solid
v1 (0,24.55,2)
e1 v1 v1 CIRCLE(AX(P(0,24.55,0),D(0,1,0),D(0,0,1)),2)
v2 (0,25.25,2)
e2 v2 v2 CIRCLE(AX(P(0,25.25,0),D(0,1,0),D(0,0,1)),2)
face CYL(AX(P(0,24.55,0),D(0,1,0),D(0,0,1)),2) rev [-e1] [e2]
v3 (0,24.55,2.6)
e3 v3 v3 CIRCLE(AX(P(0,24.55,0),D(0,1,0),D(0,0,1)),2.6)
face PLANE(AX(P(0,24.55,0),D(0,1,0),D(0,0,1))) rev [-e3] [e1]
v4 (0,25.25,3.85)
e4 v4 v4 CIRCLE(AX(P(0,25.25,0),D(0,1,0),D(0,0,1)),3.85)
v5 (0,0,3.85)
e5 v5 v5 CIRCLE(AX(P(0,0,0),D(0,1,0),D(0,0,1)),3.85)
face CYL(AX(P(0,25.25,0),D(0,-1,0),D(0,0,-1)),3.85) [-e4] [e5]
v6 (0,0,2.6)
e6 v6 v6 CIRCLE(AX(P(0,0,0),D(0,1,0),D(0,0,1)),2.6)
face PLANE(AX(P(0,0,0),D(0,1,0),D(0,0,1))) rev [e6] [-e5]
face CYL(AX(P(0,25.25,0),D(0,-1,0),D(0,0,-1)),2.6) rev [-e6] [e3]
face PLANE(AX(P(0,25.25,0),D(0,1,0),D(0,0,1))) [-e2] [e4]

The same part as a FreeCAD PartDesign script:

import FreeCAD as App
import Part
import Sketcher
from FreeCAD import Vector

doc = App.newDocument("Part")
body = doc.addObject("PartDesign::Body", "Body")

sketch1 = doc.addObject("Sketcher::SketchObject", "Sketch")
body.addObject(sketch1)
sketch1.AttachmentSupport = (doc.XZ_Plane, [""])
sketch1.MapMode = "FlatFace"
sketch1.addGeometry(Part.Circle(Vector(0, 0, 0), Vector(0, 0, 1), 3.9), False)
sketch1.addGeometry(Part.Circle(Vector(0, 0, 0), Vector(0, 0, 1), 2.6), False)
sketch1.addConstraint(Sketcher.Constraint("Coincident", 0, 3, -1, 1))
sketch1.addConstraint(Sketcher.Constraint("Coincident", 1, 3, -1, 1))
sketch1.addConstraint(Sketcher.Constraint("Diameter", 0, 7.7))
sketch1.addConstraint(Sketcher.Constraint("Diameter", 1, 5.2))
pad1 = doc.addObject("PartDesign::Pad", "Pad")
body.addObject(pad1)
pad1.Profile = sketch1
pad1.Length = 25.25
pad1.Reversed = True

sketch2 = doc.addObject("Sketcher::SketchObject", "Sketch001")
body.addObject(sketch2)
sketch2.AttachmentSupport = (doc.XZ_Plane, [""])
sketch2.MapMode = "FlatFace"
sketch2.AttachmentOffset = App.Placement(Vector(0, 0, -24.55), App.Rotation())
sketch2.addGeometry(Part.Circle(Vector(0, 0, 0), Vector(0, 0, 1), 3.9), False)
sketch2.addGeometry(Part.Circle(Vector(0, 0, 0), Vector(0, 0, 1), 2), False)
sketch2.addConstraint(Sketcher.Constraint("Coincident", 0, 3, -1, 1))
sketch2.addConstraint(Sketcher.Constraint("Coincident", 1, 3, -1, 1))
sketch2.addConstraint(Sketcher.Constraint("Diameter", 1, 4.0))
sketch2.addConstraint(Sketcher.Constraint("Diameter", 0, 7.7))
pad2 = doc.addObject("PartDesign::Pad", "Pad001")
body.addObject(pad2)
pad2.Profile = sketch2
pad2.Length = 0.7
pad2.Reversed = True

doc.recompute()
